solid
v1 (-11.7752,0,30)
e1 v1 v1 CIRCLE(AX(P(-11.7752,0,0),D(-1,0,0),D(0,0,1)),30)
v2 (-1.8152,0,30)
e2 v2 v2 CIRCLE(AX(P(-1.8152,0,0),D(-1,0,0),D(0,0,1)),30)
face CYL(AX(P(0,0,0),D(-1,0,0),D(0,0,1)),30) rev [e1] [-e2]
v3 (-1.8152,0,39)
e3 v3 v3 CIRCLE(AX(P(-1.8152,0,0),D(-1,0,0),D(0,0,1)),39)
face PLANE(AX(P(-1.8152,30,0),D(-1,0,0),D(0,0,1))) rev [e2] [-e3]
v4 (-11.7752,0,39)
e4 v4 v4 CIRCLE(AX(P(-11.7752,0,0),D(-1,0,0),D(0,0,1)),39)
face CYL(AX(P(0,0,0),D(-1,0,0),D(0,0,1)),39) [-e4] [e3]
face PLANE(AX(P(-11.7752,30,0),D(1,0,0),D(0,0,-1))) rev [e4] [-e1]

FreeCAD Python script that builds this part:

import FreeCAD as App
import Part
import Sketcher
from FreeCAD import Vector


def add_polygon(sketch, points):
    """Adds a closed chain of lines whose ends are joined by coincident constraints."""
    first, n = sketch.GeometryCount, len(points)
    for a, b in zip(points, points[1:] + points[:1]):
        sketch.addGeometry(Part.LineSegment(App.Vector(*a, 0), App.Vector(*b, 0)), False)
    for i in range(n):
        sketch.addConstraint(Sketcher.Constraint("Coincident", first + i, 2, first + (i + 1) % n, 1))

doc = App.newDocument("Part")
body = doc.addObject("PartDesign::Body", "Body")

# Sketch on XY plane
sketch1 = doc.addObject("Sketcher::SketchObject", "Sketch")
body.addObject(sketch1)
sketch1.AttachmentSupport = (doc.XY_Plane, [""])
sketch1.MapMode = "FlatFace"
add_polygon(sketch1, [(-11.7752, 39), (-11.7752, 30), (-1.8152, 30), (-1.8152, 39)])  # lines 0-3
sketch1.addConstraint(Sketcher.Constraint("Vertical", 0))
sketch1.addConstraint(Sketcher.Constraint("Horizontal", 1))
sketch1.addConstraint(Sketcher.Constraint("Vertical", 2))
sketch1.addConstraint(Sketcher.Constraint("Horizontal", 3))
sketch1.addConstraint(Sketcher.Constraint("DistanceY", 0, 2, 0, 1, 9.0))
sketch1.addConstraint(Sketcher.Constraint("DistanceY", -1, 1, 0, 2, 30.0))
sketch1.addConstraint(Sketcher.Constraint("DistanceX", 1, 1, 1, 2, 9.96))
sketch1.addConstraint(Sketcher.Constraint("DistanceX", 0, 2, -1, 1, 11.7752))
revolution = doc.addObject("PartDesign::Revolution", "Revolution")
body.addObject(revolution)
revolution.Profile = sketch1
revolution.ReferenceAxis = (sketch1, ["H_Axis"])
revolution.Angle = 360

doc.recompute()
